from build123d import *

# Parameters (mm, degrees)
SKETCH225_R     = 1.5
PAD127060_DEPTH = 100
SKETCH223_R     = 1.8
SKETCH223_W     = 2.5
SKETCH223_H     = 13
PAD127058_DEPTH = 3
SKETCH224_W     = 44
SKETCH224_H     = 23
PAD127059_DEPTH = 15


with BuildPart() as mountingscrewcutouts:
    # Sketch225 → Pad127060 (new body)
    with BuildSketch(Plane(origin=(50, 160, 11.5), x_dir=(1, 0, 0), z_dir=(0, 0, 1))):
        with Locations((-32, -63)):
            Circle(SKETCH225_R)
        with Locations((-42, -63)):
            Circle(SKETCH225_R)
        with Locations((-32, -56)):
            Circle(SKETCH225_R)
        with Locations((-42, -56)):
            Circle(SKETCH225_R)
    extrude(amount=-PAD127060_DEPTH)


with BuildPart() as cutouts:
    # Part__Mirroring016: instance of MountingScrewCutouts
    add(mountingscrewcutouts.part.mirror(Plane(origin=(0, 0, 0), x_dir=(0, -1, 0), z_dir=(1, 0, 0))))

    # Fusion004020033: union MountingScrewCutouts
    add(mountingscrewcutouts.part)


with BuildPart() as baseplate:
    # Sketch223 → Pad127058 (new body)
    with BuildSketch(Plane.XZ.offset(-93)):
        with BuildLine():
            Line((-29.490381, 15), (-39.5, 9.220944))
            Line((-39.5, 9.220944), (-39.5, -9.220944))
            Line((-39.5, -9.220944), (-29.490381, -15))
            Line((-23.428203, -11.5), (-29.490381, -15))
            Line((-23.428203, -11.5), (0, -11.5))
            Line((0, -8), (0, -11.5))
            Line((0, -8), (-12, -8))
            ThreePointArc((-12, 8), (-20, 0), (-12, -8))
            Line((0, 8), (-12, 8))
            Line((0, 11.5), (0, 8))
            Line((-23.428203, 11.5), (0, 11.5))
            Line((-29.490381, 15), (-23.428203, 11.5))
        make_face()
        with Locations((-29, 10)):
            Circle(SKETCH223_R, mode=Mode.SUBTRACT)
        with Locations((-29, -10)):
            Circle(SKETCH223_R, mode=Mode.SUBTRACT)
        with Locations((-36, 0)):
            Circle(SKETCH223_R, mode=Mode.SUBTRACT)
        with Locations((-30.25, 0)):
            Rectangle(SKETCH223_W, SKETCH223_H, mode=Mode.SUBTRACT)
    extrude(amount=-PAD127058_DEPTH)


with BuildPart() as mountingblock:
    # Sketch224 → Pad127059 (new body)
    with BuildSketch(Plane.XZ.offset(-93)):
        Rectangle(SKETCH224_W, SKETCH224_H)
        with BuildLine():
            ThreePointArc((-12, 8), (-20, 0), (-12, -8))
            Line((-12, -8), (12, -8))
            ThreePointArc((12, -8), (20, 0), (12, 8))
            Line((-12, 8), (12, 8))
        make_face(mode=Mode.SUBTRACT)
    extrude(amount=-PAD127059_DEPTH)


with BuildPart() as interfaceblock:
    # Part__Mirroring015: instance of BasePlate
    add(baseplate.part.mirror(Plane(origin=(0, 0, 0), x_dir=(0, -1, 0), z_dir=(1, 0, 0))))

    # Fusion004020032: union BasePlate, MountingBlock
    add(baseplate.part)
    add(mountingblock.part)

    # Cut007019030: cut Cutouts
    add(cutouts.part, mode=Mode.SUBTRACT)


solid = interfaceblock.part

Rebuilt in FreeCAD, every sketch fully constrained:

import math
import FreeCAD as App
import Part
import Sketcher
Q = App.Units.Quantity


def add_polygon(sketch, points):
    """Adds a closed chain of lines whose ends are joined by coincident constraints."""
    first, n = sketch.GeometryCount, len(points)
    for a, b in zip(points, points[1:] + points[:1]):
        sketch.addGeometry(Part.LineSegment(App.Vector(*a, 0), App.Vector(*b, 0)), False)
    for i in range(n):
        sketch.addConstraint(Sketcher.Constraint("Coincident", first + i, 2, first + (i + 1) % n, 1))

doc = App.newDocument("Part")
body = doc.addObject("PartDesign::Body", "Body")
body.AllowCompound = True

# Sketch on XY plane
sketch1 = body.newObject("Sketcher::SketchObject", "Sketch")
sketch1.AttachmentSupport = (doc.getObject("XY_Plane"), [""])
sketch1.MapMode = "FlatFace"
sketch1.AttachmentOffset = App.Placement(App.Vector(0, 0, 11.5), App.Rotation())
sketch1.addGeometry([
    Part.Circle(App.Vector(18, 97, 0), App.Vector(0, 0, 1), 1.5),
    Part.Circle(App.Vector(8, 97, 0), App.Vector(0, 0, 1), 1.5),
    Part.Circle(App.Vector(18, 104, 0), App.Vector(0, 0, 1), 1.5),
    Part.Circle(App.Vector(8, 104, 0), App.Vector(0, 0, 1), 1.5),
], False)
sketch1.addConstraint([
    Sketcher.Constraint("Equal", 0, 1),
    Sketcher.Constraint("Equal", 1, 2),
    Sketcher.Constraint("Equal", 2, 3),
    Sketcher.Constraint("Horizontal", 0, 3, 1, 3),
    Sketcher.Constraint("Horizontal", 2, 3, 3, 3),
    Sketcher.Constraint("Vertical", 0, 3, 2, 3),
    Sketcher.Constraint("Vertical", 1, 3, 3, 3),
    Sketcher.Constraint("Diameter", 0, 3.0),
    Sketcher.Constraint("DistanceX", -1, 1, 0, 3, 18.0),
    Sketcher.Constraint("DistanceY", -1, 1, 0, 3, 97.0),
    Sketcher.Constraint("DistanceX", -1, 1, 1, 3, 8.0),
    Sketcher.Constraint("DistanceY", -1, 1, 2, 3, 104.0),
])
pad1 = body.newObject("PartDesign::Pad", "Pad")
pad1.Profile = sketch1
pad1.Length = 100
pad1.Reversed = True
body2 = doc.addObject("PartDesign::Body", "Body001")
body2.AllowCompound = True
doc.recompute()

mirroring = doc.addObject("Part::Mirroring", "Mirroring")
mirroring.Source = body
mirroring.Base = App.Vector(0, 0, 0)
mirroring.Normal = App.Vector(1, 0, 0)
body2.BaseFeature = mirroring
doc.recompute()

boolean = body2.newObject("PartDesign::Boolean", "Boolean")
boolean.Type = "Fuse"
boolean.addObjects([body])
body3 = doc.addObject("PartDesign::Body", "Body002")

# Sketch on XZ plane
sketch2 = body3.newObject("Sketcher::SketchObject", "Sketch001")
sketch2.AttachmentSupport = (doc.getObject("XZ_Plane002"), [""])
sketch2.MapMode = "FlatFace"
sketch2.AttachmentOffset = App.Placement(App.Vector(0, 0, -93), App.Rotation())
sketch2.addGeometry(Part.LineSegment(App.Vector(-29.5, 15, 0), App.Vector(-39.5, 9.2, 0)), False)  # 0
sketch2.addGeometry(Part.LineSegment(App.Vector(-39.5, 9.2, 0), App.Vector(-39.5, -9.2, 0)), False)  # 1
sketch2.addGeometry(Part.LineSegment(App.Vector(-39.5, -9.2, 0), App.Vector(-29.5, -15, 0)), False)  # 2
sketch2.addGeometry(Part.LineSegment(App.Vector(-29.5, -15, 0), App.Vector(-23.4, -11.5, 0)), False)  # 3
sketch2.addGeometry(Part.LineSegment(App.Vector(-23.4, -11.5, 0), App.Vector(0, -11.5, 0)), False)  # 4
sketch2.addGeometry(Part.LineSegment(App.Vector(0, -11.5, 0), App.Vector(0, -8, 0)), False)  # 5
sketch2.addGeometry(Part.LineSegment(App.Vector(0, -8, 0), App.Vector(-12, -8, 0)), False)  # 6
sketch2.addGeometry(Part.ArcOfCircle(Part.Circle(App.Vector(-12, 0, 0), App.Vector(0, 0, 1), 8), math.radians(90), math.radians(270)), False)  # 7
sketch2.addGeometry(Part.LineSegment(App.Vector(-12, 8, 0), App.Vector(0, 8, 0)), False)  # 8
sketch2.addGeometry(Part.LineSegment(App.Vector(0, 8, 0), App.Vector(0, 11.5, 0)), False)  # 9
sketch2.addGeometry(Part.LineSegment(App.Vector(0, 11.5, 0), App.Vector(-23.4, 11.5, 0)), False)  # 10
sketch2.addGeometry(Part.LineSegment(App.Vector(-23.4, 11.5, 0), App.Vector(-29.5, 15, 0)), False)  # 11
sketch2.addGeometry(Part.Circle(App.Vector(-29, -10, 0), App.Vector(0, 0, 1), 1.8), False)  # 12
sketch2.addGeometry(Part.Circle(App.Vector(-36, 0, 0), App.Vector(0, 0, 1), 1.8), False)  # 13
add_polygon(sketch2, [(-29, -6.5), (-31.5, -6.5), (-31.5, 6.5), (-29, 6.5)])  # lines 14-17
sketch2.addGeometry(Part.Circle(App.Vector(-29, 10, 0), App.Vector(0, 0, 1), 1.8), False)  # 18
sketch2.addConstraint([
    Sketcher.Constraint("Coincident", 0, 2, 1, 1),
    Sketcher.Constraint("Coincident", 1, 2, 2, 1),
    Sketcher.Constraint("Coincident", 2, 2, 3, 1),
    Sketcher.Constraint("Coincident", 3, 2, 4, 1),
    Sketcher.Constraint("Coincident", 4, 2, 5, 1),
    Sketcher.Constraint("Coincident", 5, 2, 6, 1),
    Sketcher.Constraint("Tangent", 6, 2, 7, 2),
    Sketcher.Constraint("Tangent", 7, 1, 8, 1),
    Sketcher.Constraint("Coincident", 8, 2, 9, 1),
    Sketcher.Constraint("Coincident", 9, 2, 10, 1),
    Sketcher.Constraint("Coincident", 10, 2, 11, 1),
    Sketcher.Constraint("Coincident", 11, 2, 0, 1),
    Sketcher.Constraint("Vertical", 1),
    Sketcher.Constraint("Horizontal", 4),
    Sketcher.Constraint("Vertical", 5),
    Sketcher.Constraint("Horizontal", 6),
    Sketcher.Constraint("Horizontal", 8),
    Sketcher.Constraint("Vertical", 9),
    Sketcher.Constraint("Horizontal", 10),
    Sketcher.Constraint("Horizontal", 14),
    Sketcher.Constraint("Vertical", 15),
    Sketcher.Constraint("Horizontal", 16),
    Sketcher.Constraint("Vertical", 17),
    Sketcher.Constraint("Equal", 12, 13),
    Sketcher.Constraint("Equal", 13, 18),
    Sketcher.Constraint("Symmetric", 5, 2, 8, 2, -1, 1),
    Sketcher.Constraint("Symmetric", 12, 3, 18, 3, -1),
    Sketcher.Constraint("Symmetric", 4, 2, 9, 2, -1),
    Sketcher.Constraint("Symmetric", 2, 2, 11, 2, -1),
    Sketcher.Constraint("PointOnObject", 13, 3, -1),
    Sketcher.Constraint("Parallel", 0, 3),
    Sketcher.Constraint("Parallel", 2, 11),
    Sketcher.Constraint("Vertical", 3, 2, 10, 2),
    Sketcher.Constraint("Vertical", 18, 3, 16, 2),
    Sketcher.Constraint("Radius", 7, 8.0),
    Sketcher.Constraint("Diameter", 12, 3.6),
    Sketcher.Constraint("DistanceX", 6, 2, 6, 1, 12.0),
    Sketcher.Constraint("DistanceY", 15, 1, 15, 2, 13.0),
    Sketcher.Constraint("Angle", 0, Q("-150.000001 deg")),
    Sketcher.Constraint("Distance", 3, 7.0),
    Sketcher.Constraint("DistanceX", 14, 2, 14, 1, 2.5),
    Sketcher.Constraint("DistanceY", 5, 1, 5, 2, 3.5),
    Sketcher.Constraint("DistanceX", 12, 3, -1, 1, 29.0),
    Sketcher.Constraint("DistanceY", 12, 3, -1, 1, 10.0),
    Sketcher.Constraint("DistanceX", 13, 3, -1, 1, 36.0),
    Sketcher.Constraint("DistanceX", 1, 2, 14, 2, 8.0),
    Sketcher.Constraint("DistanceY", 3, 2, 14, 2, 5.0),
    Sketcher.Constraint("DistanceX", 4, 1, 4, 2, 23.428203),
])
pad2 = body3.newObject("PartDesign::Pad", "Pad001")
pad2.Profile = sketch2
pad2.Length = 3
pad2.Reversed = True
body4 = doc.addObject("PartDesign::Body", "Body003")

# Sketch on XZ plane
sketch3 = body4.newObject("Sketcher::SketchObject", "Sketch002")
sketch3.AttachmentSupport = (doc.getObject("XZ_Plane003"), [""])
sketch3.MapMode = "FlatFace"
sketch3.AttachmentOffset = App.Placement(App.Vector(0, 0, -93), App.Rotation())
add_polygon(sketch3, [(-22, 12), (-22, -12), (22, -12), (22, 12)])  # lines 0-3
sketch3.addGeometry(Part.ArcOfCircle(Part.Circle(App.Vector(-12, 0, 0), App.Vector(0, 0, 1), 8), math.radians(90), math.radians(270)), False)  # 4
sketch3.addGeometry(Part.LineSegment(App.Vector(-12, 8, 0), App.Vector(12, 8, 0)), False)  # 5
sketch3.addGeometry(Part.ArcOfCircle(Part.Circle(App.Vector(12, 0, 0), App.Vector(0, 0, 1), 8), math.radians(-90), math.radians(90)), False)  # 6
sketch3.addGeometry(Part.LineSegment(App.Vector(12, -8, 0), App.Vector(-12, -8, 0)), False)  # 7
sketch3.addConstraint([
    Sketcher.Constraint("Tangent", 4, 1, 5, 1),
    Sketcher.Constraint("Tangent", 5, 2, 6, 2),
    Sketcher.Constraint("Tangent", 6, 1, 7, 1),
    Sketcher.Constraint("Tangent", 7, 2, 4, 2),
    Sketcher.Constraint("Vertical", 0),
    Sketcher.Constraint("Horizontal", 1),
    Sketcher.Constraint("Vertical", 2),
    Sketcher.Constraint("Horizontal", 3),
    Sketcher.Constraint("Horizontal", 5),
    Sketcher.Constraint("Horizontal", 7),
    Sketcher.Constraint("Symmetric", 4, 3, 6, 3, -1, 1),
    Sketcher.Constraint("Symmetric", 0, 2, 2, 2, -1, 1),
    Sketcher.Constraint("Radius", 4, 8.0),
    Sketcher.Constraint("DistanceX", 1, 1, 1, 2, 44.0),
    Sketcher.Constraint("DistanceX", 5, 1, 5, 2, 24.0),
    Sketcher.Constraint("DistanceY", 0, 2, 0, 1, 23.0),
])
pad3 = body4.newObject("PartDesign::Pad", "Pad002")
pad3.Profile = sketch3
pad3.Length = 15
pad3.Reversed = True
body5 = doc.addObject("PartDesign::Body", "Body004")
doc.recompute()

mirroring2 = doc.addObject("Part::Mirroring", "Mirroring001")
mirroring2.Source = body3
mirroring2.Base = App.Vector(0, 0, 0)
mirroring2.Normal = App.Vector(1, 0, 0)
body5.BaseFeature = mirroring2
doc.recompute()

boolean2 = body5.newObject("PartDesign::Boolean", "Boolean001")
boolean2.Type = "Fuse"
boolean2.addObjects([body3])
doc.recompute()

boolean3 = body5.newObject("PartDesign::Boolean", "Boolean002")
boolean3.Type = "Fuse"
boolean3.addObjects([body4])
doc.recompute()

boolean4 = body5.newObject("PartDesign::Boolean", "Boolean003")
boolean4.Type = "Cut"
boolean4.addObjects([body2])
mirroring.Visibility = False
mirroring2.Visibility = False

doc.recompute()
